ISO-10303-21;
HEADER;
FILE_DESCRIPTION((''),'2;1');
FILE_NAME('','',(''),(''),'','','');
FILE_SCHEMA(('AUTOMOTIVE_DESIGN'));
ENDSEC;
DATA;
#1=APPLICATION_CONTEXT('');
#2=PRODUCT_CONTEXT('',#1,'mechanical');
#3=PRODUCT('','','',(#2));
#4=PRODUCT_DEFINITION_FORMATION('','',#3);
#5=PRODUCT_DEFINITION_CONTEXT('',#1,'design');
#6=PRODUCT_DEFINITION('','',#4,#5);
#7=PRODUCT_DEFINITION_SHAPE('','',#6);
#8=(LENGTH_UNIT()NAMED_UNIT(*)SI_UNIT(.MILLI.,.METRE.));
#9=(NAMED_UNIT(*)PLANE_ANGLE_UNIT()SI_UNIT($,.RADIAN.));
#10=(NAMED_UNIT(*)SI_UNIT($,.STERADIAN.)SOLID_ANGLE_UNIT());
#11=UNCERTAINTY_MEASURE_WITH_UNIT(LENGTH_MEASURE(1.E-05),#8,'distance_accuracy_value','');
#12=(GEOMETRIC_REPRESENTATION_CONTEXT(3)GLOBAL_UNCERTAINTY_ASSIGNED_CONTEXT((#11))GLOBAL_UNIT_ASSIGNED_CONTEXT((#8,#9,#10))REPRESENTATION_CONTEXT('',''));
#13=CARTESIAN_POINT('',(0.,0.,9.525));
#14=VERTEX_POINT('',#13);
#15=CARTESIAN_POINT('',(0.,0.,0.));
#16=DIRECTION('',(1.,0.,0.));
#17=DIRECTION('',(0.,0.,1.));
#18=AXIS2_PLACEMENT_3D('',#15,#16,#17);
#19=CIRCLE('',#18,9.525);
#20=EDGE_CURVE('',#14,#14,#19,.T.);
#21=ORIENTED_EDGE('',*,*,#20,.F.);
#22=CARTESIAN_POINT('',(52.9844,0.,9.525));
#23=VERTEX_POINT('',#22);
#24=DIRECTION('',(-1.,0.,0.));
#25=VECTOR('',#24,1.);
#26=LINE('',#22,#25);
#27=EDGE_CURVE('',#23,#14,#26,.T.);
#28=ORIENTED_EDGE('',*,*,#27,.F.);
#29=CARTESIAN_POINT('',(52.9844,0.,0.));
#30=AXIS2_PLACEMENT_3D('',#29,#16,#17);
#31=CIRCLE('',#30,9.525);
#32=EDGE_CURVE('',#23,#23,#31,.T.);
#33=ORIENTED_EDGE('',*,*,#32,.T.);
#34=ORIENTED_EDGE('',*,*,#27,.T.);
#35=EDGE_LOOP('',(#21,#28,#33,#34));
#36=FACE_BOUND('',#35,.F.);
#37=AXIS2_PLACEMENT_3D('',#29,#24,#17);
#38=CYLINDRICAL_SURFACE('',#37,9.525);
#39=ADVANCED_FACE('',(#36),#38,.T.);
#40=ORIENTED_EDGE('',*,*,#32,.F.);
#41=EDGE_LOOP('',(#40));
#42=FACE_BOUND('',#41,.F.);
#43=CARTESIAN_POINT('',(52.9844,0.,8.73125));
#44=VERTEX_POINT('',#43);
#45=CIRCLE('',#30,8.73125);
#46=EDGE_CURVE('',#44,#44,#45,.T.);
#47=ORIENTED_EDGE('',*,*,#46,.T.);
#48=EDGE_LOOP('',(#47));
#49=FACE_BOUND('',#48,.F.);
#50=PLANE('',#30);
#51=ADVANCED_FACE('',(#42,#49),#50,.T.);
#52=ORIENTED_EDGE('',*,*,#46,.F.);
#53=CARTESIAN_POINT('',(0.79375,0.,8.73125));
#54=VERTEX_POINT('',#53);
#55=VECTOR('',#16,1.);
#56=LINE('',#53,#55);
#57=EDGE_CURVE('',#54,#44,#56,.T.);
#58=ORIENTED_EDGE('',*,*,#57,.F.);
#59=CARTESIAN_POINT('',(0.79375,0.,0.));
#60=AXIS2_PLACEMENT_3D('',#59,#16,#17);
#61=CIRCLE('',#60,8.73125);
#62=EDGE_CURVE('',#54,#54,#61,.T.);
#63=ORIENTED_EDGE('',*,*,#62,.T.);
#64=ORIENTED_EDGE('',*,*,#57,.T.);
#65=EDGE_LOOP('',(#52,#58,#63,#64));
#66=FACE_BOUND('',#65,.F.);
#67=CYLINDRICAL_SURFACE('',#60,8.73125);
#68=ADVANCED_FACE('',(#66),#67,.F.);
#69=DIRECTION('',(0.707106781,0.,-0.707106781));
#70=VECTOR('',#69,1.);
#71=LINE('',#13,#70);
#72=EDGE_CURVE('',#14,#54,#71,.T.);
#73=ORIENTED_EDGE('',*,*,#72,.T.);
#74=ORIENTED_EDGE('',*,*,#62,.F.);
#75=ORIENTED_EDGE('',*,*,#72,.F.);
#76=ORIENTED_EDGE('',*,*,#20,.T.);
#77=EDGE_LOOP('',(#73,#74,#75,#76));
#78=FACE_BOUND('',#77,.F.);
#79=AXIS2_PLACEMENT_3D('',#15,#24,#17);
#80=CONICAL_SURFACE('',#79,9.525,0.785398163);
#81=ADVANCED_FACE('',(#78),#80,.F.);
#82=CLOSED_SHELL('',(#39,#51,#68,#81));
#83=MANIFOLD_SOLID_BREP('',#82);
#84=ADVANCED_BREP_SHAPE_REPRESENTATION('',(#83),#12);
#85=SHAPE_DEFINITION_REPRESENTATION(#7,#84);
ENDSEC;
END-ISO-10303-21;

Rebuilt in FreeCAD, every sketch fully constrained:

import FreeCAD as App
import Part
import Sketcher
Q = App.Units.Quantity


def add_polygon(sketch, points):
    """Adds a closed chain of lines whose ends are joined by coincident constraints."""
    first, n = sketch.GeometryCount, len(points)
    for a, b in zip(points, points[1:] + points[:1]):
        sketch.addGeometry(Part.LineSegment(App.Vector(*a, 0), App.Vector(*b, 0)), False)
    for i in range(n):
        sketch.addConstraint(Sketcher.Constraint("Coincident", first + i, 2, first + (i + 1) % n, 1))

doc = App.newDocument("Part")
body = doc.addObject("PartDesign::Body", "Body")

sketch1 = body.newObject("Sketcher::SketchObject", "Sketch")
sketch1.AttachmentSupport = (doc.getObject("XZ_Plane"), [""])
sketch1.MapMode = "FlatFace"
add_polygon(sketch1, [(0, 9.5), (0.8, 8.7), (53, 8.7), (53, 9.5)])
sketch1.addConstraint([
    Sketcher.Constraint("Horizontal", 1),
    Sketcher.Constraint("Vertical", 2),
    Sketcher.Constraint("Horizontal", 3),
    Sketcher.Constraint("PointOnObject", 3, 2, -2),
    Sketcher.Constraint("Angle", 0, Q("-45 deg")),
    Sketcher.Constraint("DistanceX", 3, 2, 3, 1, Q("2.086 in")),
    Sketcher.Constraint("DistanceY", 2, 1, 2, 2, Q("0.03125 in")),
    Sketcher.Constraint("DistanceY", -1, 1, 0, 2, Q("0.34375 in")),
])
revolution = body.newObject("PartDesign::Revolution", "Revolution")
revolution.Profile = sketch1
revolution.ReferenceAxis = (sketch1, ["H_Axis"])
revolution.Angle = 360

doc.recompute()
